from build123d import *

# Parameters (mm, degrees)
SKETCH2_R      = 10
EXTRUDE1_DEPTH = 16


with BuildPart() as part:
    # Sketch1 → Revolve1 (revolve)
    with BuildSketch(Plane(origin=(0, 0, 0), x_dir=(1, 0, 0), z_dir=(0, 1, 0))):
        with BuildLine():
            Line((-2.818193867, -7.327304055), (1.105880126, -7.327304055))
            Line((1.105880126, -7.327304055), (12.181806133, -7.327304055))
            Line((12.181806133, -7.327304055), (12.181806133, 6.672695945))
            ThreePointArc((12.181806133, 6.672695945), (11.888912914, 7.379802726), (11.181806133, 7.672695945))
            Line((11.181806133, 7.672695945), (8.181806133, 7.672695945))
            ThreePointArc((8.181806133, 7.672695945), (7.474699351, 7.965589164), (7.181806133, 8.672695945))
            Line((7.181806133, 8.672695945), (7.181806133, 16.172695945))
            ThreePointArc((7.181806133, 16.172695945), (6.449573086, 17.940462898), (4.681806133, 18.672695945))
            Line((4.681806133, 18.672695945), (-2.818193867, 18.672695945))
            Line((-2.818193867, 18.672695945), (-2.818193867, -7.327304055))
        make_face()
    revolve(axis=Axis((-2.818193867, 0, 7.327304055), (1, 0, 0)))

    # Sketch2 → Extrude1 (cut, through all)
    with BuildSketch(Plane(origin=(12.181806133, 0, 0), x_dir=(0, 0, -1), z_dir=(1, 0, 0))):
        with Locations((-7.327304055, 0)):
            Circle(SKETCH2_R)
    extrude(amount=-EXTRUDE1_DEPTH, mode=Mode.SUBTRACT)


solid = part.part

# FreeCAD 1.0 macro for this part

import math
import FreeCAD as App
import Part
import Sketcher
Q = App.Units.Quantity

doc = App.newDocument("Part")
body = doc.addObject("PartDesign::Body", "Body")

# Sketch on XZ plane
sketch1 = body.newObject("Sketcher::SketchObject", "Sketch")
sketch1.AttachmentSupport = (doc.getObject("XZ_Plane"), [""])
sketch1.MapMode = "FlatFace"
sketch1.addGeometry([
    Part.LineSegment(App.Vector(-2.8, 7.3, 0), App.Vector(12.2, 7.3, 0)),  # 0
    Part.LineSegment(App.Vector(12.2, 7.3, 0), App.Vector(12.2, -6.7, 0)),  # 1
    Part.ArcOfCircle(Part.Circle(App.Vector(11.2, -6.7, 0), App.Vector(0, 0, 1), 1), math.radians(-90), math.radians(0)),  # 2
    Part.LineSegment(App.Vector(11.2, -7.7, 0), App.Vector(8.2, -7.7, 0)),  # 3
    Part.ArcOfCircle(Part.Circle(App.Vector(8.2, -8.7, 0), App.Vector(0, 0, 1), 1), math.radians(90), math.radians(180)),  # 4
    Part.LineSegment(App.Vector(7.2, -8.7, 0), App.Vector(7.2, -16.2, 0)),  # 5
    Part.ArcOfCircle(Part.Circle(App.Vector(4.7, -16.2, 0), App.Vector(0, 0, 1), 2.5), math.radians(-90), math.radians(0)),  # 6
    Part.LineSegment(App.Vector(4.7, -18.7, 0), App.Vector(-2.8, -18.7, 0)),  # 7
    Part.LineSegment(App.Vector(-2.8, -18.7, 0), App.Vector(-2.8, 7.3, 0)),  # 8
], False)
sketch1.addGeometry(Part.LineSegment(App.Vector(-2.8, 7.3, 0), App.Vector(12.2, 7.3, 0)), True)  # axis
sketch1.addConstraint([
    Sketcher.Constraint("Coincident", 0, 2, 1, 1),
    Sketcher.Constraint("Tangent", 1, 2, 2, 2),
    Sketcher.Constraint("Tangent", 2, 1, 3, 1),
    Sketcher.Constraint("Tangent", 3, 2, 4, 1),
    Sketcher.Constraint("Tangent", 4, 2, 5, 1),
    Sketcher.Constraint("Tangent", 5, 2, 6, 2),
    Sketcher.Constraint("Tangent", 6, 1, 7, 1),
    Sketcher.Constraint("Coincident", 7, 2, 8, 1),
    Sketcher.Constraint("Coincident", 8, 2, 0, 1),
    Sketcher.Constraint("Horizontal", 0),
    Sketcher.Constraint("Vertical", 1),
    Sketcher.Constraint("Horizontal", 3),
    Sketcher.Constraint("Vertical", 5),
    Sketcher.Constraint("Horizontal", 7),
    Sketcher.Constraint("Vertical", 8),
    Sketcher.Constraint("Horizontal", 9),
    Sketcher.Constraint("Coincident", 9, 1, 8, 2),
    Sketcher.Constraint("Equal", 2, 4),
    Sketcher.Constraint("Vertical", 1, 2, 9, 2),
    Sketcher.Constraint("Equal", 7, 5),
    Sketcher.Constraint("Radius", 2, Q("1 mm")),
    Sketcher.Constraint("Radius", 6, Q("2.5 mm")),
    Sketcher.Constraint("DistanceX", 0, 1, 0, 2, Q("15 mm")),
    Sketcher.Constraint("DistanceX", 3, 2, 3, 1, Q("3 mm")),
    Sketcher.Constraint("DistanceY", 1, 2, 1, 1, Q("14 mm")),
    Sketcher.Constraint("DistanceX", -1, 1, 2, 3, Q("11.181806 mm")),
    Sketcher.Constraint("DistanceY", 2, 3, -1, 1, Q("6.672696 mm")),
])
revolution = body.newObject("PartDesign::Revolution", "Revolution")
revolution.Profile = sketch1
revolution.ReferenceAxis = (sketch1, ["Axis0"])
revolution.Angle = 360

# Sketch on YZ plane
sketch2 = body.newObject("Sketcher::SketchObject", "Sketch001")
sketch2.AttachmentSupport = (doc.getObject("YZ_Plane"), [""])
sketch2.MapMode = "FlatFace"
sketch2.AttachmentOffset = App.Placement(App.Vector(0, 0, 12.181806), App.Rotation())
sketch2.addGeometry(Part.Circle(App.Vector(0, 7, 0), App.Vector(0, 0, 1), 10), False)
sketch2.addConstraint([
    Sketcher.Constraint("PointOnObject", 0, 3, -2),
    Sketcher.Constraint("Diameter", 0, Q("20 mm")),
    Sketcher.Constraint("DistanceY", -1, 1, 0, 3, Q("7.327304 mm")),
])
pocket1 = body.newObject("PartDesign::Pocket", "Pocket")
pocket1.Profile = sketch2
pocket1.Type = "ThroughAll"

doc.recompute()
